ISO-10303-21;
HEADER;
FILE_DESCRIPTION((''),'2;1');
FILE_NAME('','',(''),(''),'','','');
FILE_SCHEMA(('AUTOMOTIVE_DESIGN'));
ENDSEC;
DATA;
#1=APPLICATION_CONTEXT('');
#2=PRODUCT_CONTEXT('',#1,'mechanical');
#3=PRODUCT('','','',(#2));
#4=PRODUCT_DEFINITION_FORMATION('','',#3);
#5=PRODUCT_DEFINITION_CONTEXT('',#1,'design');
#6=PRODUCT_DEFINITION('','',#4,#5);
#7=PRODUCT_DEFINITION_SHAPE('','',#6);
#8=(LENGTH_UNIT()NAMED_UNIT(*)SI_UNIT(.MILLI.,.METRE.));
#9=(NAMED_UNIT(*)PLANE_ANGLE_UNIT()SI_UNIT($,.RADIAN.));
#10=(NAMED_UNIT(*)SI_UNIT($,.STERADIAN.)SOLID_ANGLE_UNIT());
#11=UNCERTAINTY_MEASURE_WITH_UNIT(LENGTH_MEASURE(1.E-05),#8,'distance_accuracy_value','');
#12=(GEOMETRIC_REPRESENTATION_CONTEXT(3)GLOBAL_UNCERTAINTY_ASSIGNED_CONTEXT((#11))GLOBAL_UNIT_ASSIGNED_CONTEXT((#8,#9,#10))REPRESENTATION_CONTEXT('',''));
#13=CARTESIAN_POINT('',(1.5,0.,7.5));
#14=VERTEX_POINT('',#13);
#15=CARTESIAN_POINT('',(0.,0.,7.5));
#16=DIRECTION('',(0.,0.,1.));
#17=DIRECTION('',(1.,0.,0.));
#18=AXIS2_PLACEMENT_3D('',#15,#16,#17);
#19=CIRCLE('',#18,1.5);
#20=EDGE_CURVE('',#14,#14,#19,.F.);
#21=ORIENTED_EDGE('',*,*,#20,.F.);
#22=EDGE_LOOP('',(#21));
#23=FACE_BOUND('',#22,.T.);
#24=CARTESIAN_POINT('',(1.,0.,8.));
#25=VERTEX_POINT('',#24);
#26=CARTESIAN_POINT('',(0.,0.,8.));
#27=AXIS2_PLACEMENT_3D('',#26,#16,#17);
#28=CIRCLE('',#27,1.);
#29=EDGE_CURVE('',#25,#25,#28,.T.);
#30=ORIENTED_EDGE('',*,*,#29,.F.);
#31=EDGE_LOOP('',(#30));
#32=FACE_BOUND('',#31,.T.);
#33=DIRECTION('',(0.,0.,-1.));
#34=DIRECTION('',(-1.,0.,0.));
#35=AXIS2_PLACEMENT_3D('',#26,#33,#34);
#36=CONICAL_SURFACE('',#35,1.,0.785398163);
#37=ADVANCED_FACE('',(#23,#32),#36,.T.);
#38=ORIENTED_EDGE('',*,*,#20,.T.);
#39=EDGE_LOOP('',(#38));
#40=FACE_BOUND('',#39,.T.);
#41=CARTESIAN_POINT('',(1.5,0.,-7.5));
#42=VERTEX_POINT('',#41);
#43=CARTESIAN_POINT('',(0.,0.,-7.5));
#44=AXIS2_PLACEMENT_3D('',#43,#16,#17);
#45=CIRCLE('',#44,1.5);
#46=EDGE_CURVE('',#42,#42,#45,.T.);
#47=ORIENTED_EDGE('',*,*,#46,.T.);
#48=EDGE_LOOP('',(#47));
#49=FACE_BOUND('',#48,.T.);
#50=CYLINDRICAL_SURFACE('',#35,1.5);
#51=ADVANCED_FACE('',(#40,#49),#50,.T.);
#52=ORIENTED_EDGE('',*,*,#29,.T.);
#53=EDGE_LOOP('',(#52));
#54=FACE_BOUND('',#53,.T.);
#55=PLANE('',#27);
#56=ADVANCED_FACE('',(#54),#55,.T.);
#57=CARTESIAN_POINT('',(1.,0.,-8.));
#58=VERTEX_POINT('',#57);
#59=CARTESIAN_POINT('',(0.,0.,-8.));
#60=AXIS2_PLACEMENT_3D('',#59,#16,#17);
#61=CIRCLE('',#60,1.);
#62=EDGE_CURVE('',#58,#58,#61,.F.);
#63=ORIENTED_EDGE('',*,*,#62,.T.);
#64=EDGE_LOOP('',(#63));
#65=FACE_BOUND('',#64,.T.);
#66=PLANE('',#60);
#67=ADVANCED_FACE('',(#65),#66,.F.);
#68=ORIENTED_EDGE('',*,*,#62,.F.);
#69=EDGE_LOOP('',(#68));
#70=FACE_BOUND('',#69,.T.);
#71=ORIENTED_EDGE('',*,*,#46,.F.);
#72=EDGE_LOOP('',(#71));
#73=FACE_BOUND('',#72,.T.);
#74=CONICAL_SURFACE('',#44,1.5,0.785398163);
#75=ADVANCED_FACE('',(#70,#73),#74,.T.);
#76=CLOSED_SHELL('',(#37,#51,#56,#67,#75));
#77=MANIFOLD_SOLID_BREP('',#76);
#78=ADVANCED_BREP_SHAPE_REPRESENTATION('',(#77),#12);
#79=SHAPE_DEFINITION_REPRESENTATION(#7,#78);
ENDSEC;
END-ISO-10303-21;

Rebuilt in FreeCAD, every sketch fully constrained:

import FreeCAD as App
import Part
import Sketcher
from FreeCAD import Vector


def edges_at(feature, points):
    """Names of the edges that pass closest to the given points."""
    edges = feature.Shape.Edges
    near = lambda p: min(range(len(edges)), key=lambda i: edges[i].distToShape(Part.Vertex(*p))[0])
    return sorted({f"Edge{near(p) + 1}" for p in points})

doc = App.newDocument("Part")
body = doc.addObject("PartDesign::Body", "Body")

# Sketch on XY plane
sketch1 = body.newObject("Sketcher::SketchObject", "Sketch")
sketch1.AttachmentSupport = (doc.getObject("XY_Plane"), [""])
sketch1.MapMode = "FlatFace"
sketch1.addGeometry(Part.Circle(Vector(0, 0, 0), Vector(0, 0, 1), 1.5), False)
sketch1.addConstraint([
    Sketcher.Constraint("Coincident", 0, 3, -1, 1),
    Sketcher.Constraint("Diameter", 0, 3.0),
])
pad1 = body.newObject("PartDesign::Pad", "Pad")
pad1.Profile = sketch1
pad1.Length = 16
pad1.Midplane = True
doc.recompute()

chamfer = body.newObject("PartDesign::Chamfer", "Chamfer")
chamfer.Base = (pad1, edges_at(pad1, [(-1.5, 0, -8), (-1.5, 0, 8)]))
chamfer.Size = 0.5

doc.recompute()
